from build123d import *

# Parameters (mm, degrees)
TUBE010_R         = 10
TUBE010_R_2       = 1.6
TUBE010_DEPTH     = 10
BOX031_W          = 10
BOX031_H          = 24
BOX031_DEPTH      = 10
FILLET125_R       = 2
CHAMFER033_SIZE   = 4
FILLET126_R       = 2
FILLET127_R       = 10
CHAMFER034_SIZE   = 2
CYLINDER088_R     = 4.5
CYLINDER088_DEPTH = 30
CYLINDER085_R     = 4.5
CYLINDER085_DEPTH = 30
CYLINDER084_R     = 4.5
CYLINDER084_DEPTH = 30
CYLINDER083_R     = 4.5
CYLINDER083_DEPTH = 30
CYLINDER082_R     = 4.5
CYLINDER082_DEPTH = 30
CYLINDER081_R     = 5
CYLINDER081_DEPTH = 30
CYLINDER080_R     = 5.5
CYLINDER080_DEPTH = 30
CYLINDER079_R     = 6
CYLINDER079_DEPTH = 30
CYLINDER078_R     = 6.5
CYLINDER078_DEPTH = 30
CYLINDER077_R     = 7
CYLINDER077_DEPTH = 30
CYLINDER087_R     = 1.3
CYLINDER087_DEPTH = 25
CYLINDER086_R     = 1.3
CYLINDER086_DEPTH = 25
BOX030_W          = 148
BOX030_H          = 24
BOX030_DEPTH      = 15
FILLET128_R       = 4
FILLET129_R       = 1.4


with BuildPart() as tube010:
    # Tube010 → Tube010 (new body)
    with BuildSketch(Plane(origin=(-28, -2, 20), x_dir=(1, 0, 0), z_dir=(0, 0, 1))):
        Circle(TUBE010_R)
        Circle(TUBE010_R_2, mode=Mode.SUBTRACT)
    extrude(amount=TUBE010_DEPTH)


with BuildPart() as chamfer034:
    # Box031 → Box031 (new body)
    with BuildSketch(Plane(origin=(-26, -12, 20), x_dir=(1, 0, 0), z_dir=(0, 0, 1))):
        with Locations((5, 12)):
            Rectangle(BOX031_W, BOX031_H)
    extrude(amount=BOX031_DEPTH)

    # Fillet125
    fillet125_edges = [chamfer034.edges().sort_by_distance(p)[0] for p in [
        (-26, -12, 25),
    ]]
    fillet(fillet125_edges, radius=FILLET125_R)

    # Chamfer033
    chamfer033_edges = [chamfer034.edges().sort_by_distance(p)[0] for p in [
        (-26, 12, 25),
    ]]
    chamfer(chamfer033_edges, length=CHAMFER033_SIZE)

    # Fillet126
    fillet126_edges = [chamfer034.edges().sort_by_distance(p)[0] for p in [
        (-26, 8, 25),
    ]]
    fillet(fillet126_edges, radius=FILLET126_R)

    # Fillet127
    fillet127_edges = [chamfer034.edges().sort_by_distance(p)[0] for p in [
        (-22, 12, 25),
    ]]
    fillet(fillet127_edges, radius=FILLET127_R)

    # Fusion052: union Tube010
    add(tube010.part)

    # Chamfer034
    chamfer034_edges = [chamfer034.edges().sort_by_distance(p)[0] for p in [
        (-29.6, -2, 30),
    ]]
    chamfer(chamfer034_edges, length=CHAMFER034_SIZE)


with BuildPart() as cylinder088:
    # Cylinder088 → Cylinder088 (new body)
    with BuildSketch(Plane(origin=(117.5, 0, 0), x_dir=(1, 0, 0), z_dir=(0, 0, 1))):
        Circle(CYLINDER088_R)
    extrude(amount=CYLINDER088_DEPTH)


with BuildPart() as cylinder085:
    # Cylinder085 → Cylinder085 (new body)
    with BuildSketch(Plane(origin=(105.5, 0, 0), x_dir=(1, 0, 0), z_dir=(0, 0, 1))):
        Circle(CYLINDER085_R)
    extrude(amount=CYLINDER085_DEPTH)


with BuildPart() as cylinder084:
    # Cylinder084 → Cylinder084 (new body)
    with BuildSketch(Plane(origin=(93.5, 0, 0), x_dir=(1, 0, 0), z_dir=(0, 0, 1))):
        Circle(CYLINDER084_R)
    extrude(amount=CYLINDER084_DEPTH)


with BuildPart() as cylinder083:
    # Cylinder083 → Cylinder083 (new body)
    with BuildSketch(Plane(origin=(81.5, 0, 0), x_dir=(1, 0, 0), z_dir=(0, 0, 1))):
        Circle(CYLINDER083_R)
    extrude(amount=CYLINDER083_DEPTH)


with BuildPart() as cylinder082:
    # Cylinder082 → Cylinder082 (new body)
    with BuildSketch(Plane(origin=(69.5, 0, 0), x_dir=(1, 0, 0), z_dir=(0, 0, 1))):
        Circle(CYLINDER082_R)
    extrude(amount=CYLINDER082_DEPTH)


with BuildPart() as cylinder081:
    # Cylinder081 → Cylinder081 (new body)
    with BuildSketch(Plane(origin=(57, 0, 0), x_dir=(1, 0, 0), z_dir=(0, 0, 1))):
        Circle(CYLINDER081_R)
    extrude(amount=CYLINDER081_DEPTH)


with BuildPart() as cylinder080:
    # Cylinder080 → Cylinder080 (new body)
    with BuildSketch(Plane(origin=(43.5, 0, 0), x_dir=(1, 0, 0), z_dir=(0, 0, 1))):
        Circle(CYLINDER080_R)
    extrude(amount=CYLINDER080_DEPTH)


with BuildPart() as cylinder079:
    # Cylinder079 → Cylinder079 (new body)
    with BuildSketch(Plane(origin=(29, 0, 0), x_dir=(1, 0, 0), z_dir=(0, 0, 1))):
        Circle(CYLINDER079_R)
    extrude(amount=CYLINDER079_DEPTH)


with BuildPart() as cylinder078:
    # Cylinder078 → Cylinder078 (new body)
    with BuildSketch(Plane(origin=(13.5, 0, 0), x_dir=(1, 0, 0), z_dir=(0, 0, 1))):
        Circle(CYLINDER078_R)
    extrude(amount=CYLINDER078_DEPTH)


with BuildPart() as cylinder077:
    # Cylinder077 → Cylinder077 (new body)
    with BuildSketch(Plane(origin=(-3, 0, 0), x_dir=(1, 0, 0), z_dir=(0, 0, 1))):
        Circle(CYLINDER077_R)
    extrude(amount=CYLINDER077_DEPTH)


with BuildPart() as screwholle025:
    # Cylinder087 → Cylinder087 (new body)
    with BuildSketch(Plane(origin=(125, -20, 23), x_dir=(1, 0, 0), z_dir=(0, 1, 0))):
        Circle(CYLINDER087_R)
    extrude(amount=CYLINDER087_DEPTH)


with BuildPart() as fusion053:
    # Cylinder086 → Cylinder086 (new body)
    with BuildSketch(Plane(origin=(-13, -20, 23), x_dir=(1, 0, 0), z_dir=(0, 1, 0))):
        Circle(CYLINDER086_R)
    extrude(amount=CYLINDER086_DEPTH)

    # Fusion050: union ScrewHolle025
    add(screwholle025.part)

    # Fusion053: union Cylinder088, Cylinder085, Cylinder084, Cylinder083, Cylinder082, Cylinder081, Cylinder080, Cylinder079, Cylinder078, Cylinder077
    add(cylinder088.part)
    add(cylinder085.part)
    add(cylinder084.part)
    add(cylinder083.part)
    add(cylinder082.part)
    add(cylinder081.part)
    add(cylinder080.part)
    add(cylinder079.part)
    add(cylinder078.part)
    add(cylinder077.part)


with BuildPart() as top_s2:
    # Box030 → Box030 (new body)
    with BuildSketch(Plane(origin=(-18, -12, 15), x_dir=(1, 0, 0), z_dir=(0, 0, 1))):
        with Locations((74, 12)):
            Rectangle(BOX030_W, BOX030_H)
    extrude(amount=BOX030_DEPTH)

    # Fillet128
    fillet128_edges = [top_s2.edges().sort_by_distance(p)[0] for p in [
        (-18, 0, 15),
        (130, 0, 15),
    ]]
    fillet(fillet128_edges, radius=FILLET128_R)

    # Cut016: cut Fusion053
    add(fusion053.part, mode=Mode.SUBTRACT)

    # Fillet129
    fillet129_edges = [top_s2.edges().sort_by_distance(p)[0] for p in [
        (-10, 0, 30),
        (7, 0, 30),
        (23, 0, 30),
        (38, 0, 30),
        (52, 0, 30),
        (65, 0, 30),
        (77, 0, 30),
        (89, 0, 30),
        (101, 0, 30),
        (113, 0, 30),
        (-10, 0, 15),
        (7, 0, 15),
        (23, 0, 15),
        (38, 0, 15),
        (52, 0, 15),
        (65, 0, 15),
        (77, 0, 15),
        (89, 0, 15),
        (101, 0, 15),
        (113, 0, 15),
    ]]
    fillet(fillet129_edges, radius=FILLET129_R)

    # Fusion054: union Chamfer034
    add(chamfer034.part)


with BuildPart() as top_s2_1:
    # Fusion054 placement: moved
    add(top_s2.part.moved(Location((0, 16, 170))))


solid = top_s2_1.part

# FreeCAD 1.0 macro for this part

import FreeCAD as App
import Part
import Sketcher

V = App.Vector


def edges_at(feature, points):
    """Names of the edges that pass closest to the given points."""
    edges = feature.Shape.Edges
    near = lambda p: min(range(len(edges)), key=lambda i: edges[i].distToShape(Part.Vertex(*p))[0])
    return sorted({f"Edge{near(p) + 1}" for p in points})

doc = App.newDocument("Part")
body = doc.addObject("PartDesign::Body", "Body")

# Sketch on XY plane
sketch1 = doc.addObject("Sketcher::SketchObject", "Sketch")
body.addObject(sketch1)
sketch1.AttachmentSupport = (doc.XY_Plane, [""])
sketch1.MapMode = "FlatFace"
sketch1.AttachmentOffset = App.Placement(V(0, 0, 20), App.Rotation())
sketch1.addGeometry(Part.Circle(V(-28, -2, 0), V(0, 0, 1), 10), False)
sketch1.addGeometry(Part.Circle(V(-28, -2, 0), V(0, 0, 1), 1.6), False)
sketch1.addConstraint(Sketcher.Constraint("Coincident", 1, 3, 0, 3))
sketch1.addConstraint(Sketcher.Constraint("Diameter", 0, 20.0))
sketch1.addConstraint(Sketcher.Constraint("Diameter", 1, 3.2))
sketch1.addConstraint(Sketcher.Constraint("DistanceX", 0, 3, -1, 1, 28.0))
sketch1.addConstraint(Sketcher.Constraint("DistanceY", 0, 3, -1, 1, 2.0))
pad1 = doc.addObject("PartDesign::Pad", "Pad")
body.addObject(pad1)
pad1.Profile = sketch1
pad1.Length = 10
body2 = doc.addObject("PartDesign::Body", "Body001")

# Sketch on XY plane
sketch2 = doc.addObject("Sketcher::SketchObject", "Sketch001")
body2.addObject(sketch2)
sketch2.AttachmentSupport = (doc.getObject("XY_Plane001"), [""])
sketch2.MapMode = "FlatFace"
sketch2.AttachmentOffset = App.Placement(V(0, 0, 20), App.Rotation())
sketch2.addGeometry(Part.LineSegment(V(-26, 12, 0), V(-26, -12, 0)), False)
sketch2.addGeometry(Part.LineSegment(V(-26, -12, 0), V(-16, -12, 0)), False)
sketch2.addGeometry(Part.LineSegment(V(-16, -12, 0), V(-16, 12, 0)), False)
sketch2.addGeometry(Part.LineSegment(V(-16, 12, 0), V(-26, 12, 0)), False)
sketch2.addConstraint(Sketcher.Constraint("Coincident", 0, 2, 1, 1))
sketch2.addConstraint(Sketcher.Constraint("Coincident", 1, 2, 2, 1))
sketch2.addConstraint(Sketcher.Constraint("Coincident", 2, 2, 3, 1))
sketch2.addConstraint(Sketcher.Constraint("Coincident", 3, 2, 0, 1))
sketch2.addConstraint(Sketcher.Constraint("Vertical", 0))
sketch2.addConstraint(Sketcher.Constraint("Horizontal", 1))
sketch2.addConstraint(Sketcher.Constraint("Vertical", 2))
sketch2.addConstraint(Sketcher.Constraint("Horizontal", 3))
sketch2.addConstraint(Sketcher.Constraint("DistanceX", 1, 1, 1, 2, 10.0))
sketch2.addConstraint(Sketcher.Constraint("DistanceY", 0, 2, 0, 1, 24.0))
sketch2.addConstraint(Sketcher.Constraint("DistanceX", 0, 2, -1, 1, 26.0))
sketch2.addConstraint(Sketcher.Constraint("DistanceY", 0, 2, -1, 1, 12.0))
pad2 = doc.addObject("PartDesign::Pad", "Pad001")
body2.addObject(pad2)
pad2.Profile = sketch2
pad2.Length = 10
doc.recompute()

fillet = doc.addObject("PartDesign::Fillet", "Fillet")
body2.addObject(fillet)
fillet.Base = (pad2, edges_at(pad2, [(-26, -12, 25)]))
fillet.Radius = 2
doc.recompute()

chamfer = doc.addObject("PartDesign::Chamfer", "Chamfer")
body2.addObject(chamfer)
chamfer.Base = (fillet, edges_at(fillet, [(-26, 12, 25)]))
chamfer.Size = 4
doc.recompute()

fillet2 = doc.addObject("PartDesign::Fillet", "Fillet001")
body2.addObject(fillet2)
fillet2.Base = (chamfer, edges_at(chamfer, [(-26, 8, 25)]))
fillet2.Radius = 2
doc.recompute()

fillet3 = doc.addObject("PartDesign::Fillet", "Fillet002")
body2.addObject(fillet3)
fillet3.Base = (fillet2, edges_at(fillet2, [(-22, 12, 25)]))
fillet3.Radius = 10
doc.recompute()

boolean = doc.addObject("PartDesign::Boolean", "Boolean")
body2.addObject(boolean)
boolean.Type = "Fuse"
boolean.addObjects([body])
doc.recompute()

chamfer2 = doc.addObject("PartDesign::Chamfer", "Chamfer001")
body2.addObject(chamfer2)
chamfer2.Base = (boolean, edges_at(boolean, [(-29.6, -2, 30)]))
chamfer2.Size = 2
body3 = doc.addObject("PartDesign::Body", "Body002")

# Sketch on XY plane
sketch3 = doc.addObject("Sketcher::SketchObject", "Sketch002")
body3.addObject(sketch3)
sketch3.AttachmentSupport = (doc.getObject("XY_Plane002"), [""])
sketch3.MapMode = "FlatFace"
sketch3.addGeometry(Part.Circle(V(117.5, 0, 0), V(0, 0, 1), 4.5), False)
sketch3.addConstraint(Sketcher.Constraint("PointOnObject", 0, 3, -1))
sketch3.addConstraint(Sketcher.Constraint("Diameter", 0, 9.0))
sketch3.addConstraint(Sketcher.Constraint("DistanceX", -1, 1, 0, 3, 117.5))
pad3 = doc.addObject("PartDesign::Pad", "Pad002")
body3.addObject(pad3)
pad3.Profile = sketch3
pad3.Length = 30
body4 = doc.addObject("PartDesign::Body", "Body003")

# Sketch on XY plane
sketch4 = doc.addObject("Sketcher::SketchObject", "Sketch003")
body4.addObject(sketch4)
sketch4.AttachmentSupport = (doc.getObject("XY_Plane003"), [""])
sketch4.MapMode = "FlatFace"
sketch4.addGeometry(Part.Circle(V(105.5, 0, 0), V(0, 0, 1), 4.5), False)
sketch4.addConstraint(Sketcher.Constraint("PointOnObject", 0, 3, -1))
sketch4.addConstraint(Sketcher.Constraint("Diameter", 0, 9.0))
sketch4.addConstraint(Sketcher.Constraint("DistanceX", -1, 1, 0, 3, 105.5))
pad4 = doc.addObject("PartDesign::Pad", "Pad003")
body4.addObject(pad4)
pad4.Profile = sketch4
pad4.Length = 30
body5 = doc.addObject("PartDesign::Body", "Body004")

# Sketch on XY plane
sketch5 = doc.addObject("Sketcher::SketchObject", "Sketch004")
body5.addObject(sketch5)
sketch5.AttachmentSupport = (doc.getObject("XY_Plane004"), [""])
sketch5.MapMode = "FlatFace"
sketch5.addGeometry(Part.Circle(V(93.5, 0, 0), V(0, 0, 1), 4.5), False)
sketch5.addConstraint(Sketcher.Constraint("PointOnObject", 0, 3, -1))
sketch5.addConstraint(Sketcher.Constraint("Diameter", 0, 9.0))
sketch5.addConstraint(Sketcher.Constraint("DistanceX", -1, 1, 0, 3, 93.5))
pad5 = doc.addObject("PartDesign::Pad", "Pad004")
body5.addObject(pad5)
pad5.Profile = sketch5
pad5.Length = 30
body6 = doc.addObject("PartDesign::Body", "Body005")

# Sketch on XY plane
sketch6 = doc.addObject("Sketcher::SketchObject", "Sketch005")
body6.addObject(sketch6)
sketch6.AttachmentSupport = (doc.getObject("XY_Plane005"), [""])
sketch6.MapMode = "FlatFace"
sketch6.addGeometry(Part.Circle(V(81.5, 0, 0), V(0, 0, 1), 4.5), False)
sketch6.addConstraint(Sketcher.Constraint("PointOnObject", 0, 3, -1))
sketch6.addConstraint(Sketcher.Constraint("Diameter", 0, 9.0))
sketch6.addConstraint(Sketcher.Constraint("DistanceX", -1, 1, 0, 3, 81.5))
pad6 = doc.addObject("PartDesign::Pad", "Pad005")
body6.addObject(pad6)
pad6.Profile = sketch6
pad6.Length = 30
body7 = doc.addObject("PartDesign::Body", "Body006")

# Sketch on XY plane
sketch7 = doc.addObject("Sketcher::SketchObject", "Sketch006")
body7.addObject(sketch7)
sketch7.AttachmentSupport = (doc.getObject("XY_Plane006"), [""])
sketch7.MapMode = "FlatFace"
sketch7.addGeometry(Part.Circle(V(69.5, 0, 0), V(0, 0, 1), 4.5), False)
sketch7.addConstraint(Sketcher.Constraint("PointOnObject", 0, 3, -1))
sketch7.addConstraint(Sketcher.Constraint("Diameter", 0, 9.0))
sketch7.addConstraint(Sketcher.Constraint("DistanceX", -1, 1, 0, 3, 69.5))
pad7 = doc.addObject("PartDesign::Pad", "Pad006")
body7.addObject(pad7)
pad7.Profile = sketch7
pad7.Length = 30
body8 = doc.addObject("PartDesign::Body", "Body007")

# Sketch on XY plane
sketch8 = doc.addObject("Sketcher::SketchObject", "Sketch007")
body8.addObject(sketch8)
sketch8.AttachmentSupport = (doc.getObject("XY_Plane007"), [""])
sketch8.MapMode = "FlatFace"
sketch8.addGeometry(Part.Circle(V(57, 0, 0), V(0, 0, 1), 5), False)
sketch8.addConstraint(Sketcher.Constraint("PointOnObject", 0, 3, -1))
sketch8.addConstraint(Sketcher.Constraint("Diameter", 0, 10.0))
sketch8.addConstraint(Sketcher.Constraint("DistanceX", -1, 1, 0, 3, 57.0))
pad8 = doc.addObject("PartDesign::Pad", "Pad007")
body8.addObject(pad8)
pad8.Profile = sketch8
pad8.Length = 30
body9 = doc.addObject("PartDesign::Body", "Body008")

# Sketch on XY plane
sketch9 = doc.addObject("Sketcher::SketchObject", "Sketch008")
body9.addObject(sketch9)
sketch9.AttachmentSupport = (doc.getObject("XY_Plane008"), [""])
sketch9.MapMode = "FlatFace"
sketch9.addGeometry(Part.Circle(V(44, 0, 0), V(0, 0, 1), 6), False)
sketch9.addConstraint(Sketcher.Constraint("PointOnObject", 0, 3, -1))
sketch9.addConstraint(Sketcher.Constraint("Diameter", 0, 11.0))
sketch9.addConstraint(Sketcher.Constraint("DistanceX", -1, 1, 0, 3, 43.5))
pad9 = doc.addObject("PartDesign::Pad", "Pad008")
body9.addObject(pad9)
pad9.Profile = sketch9
pad9.Length = 30
body10 = doc.addObject("PartDesign::Body", "Body009")

# Sketch on XY plane
sketch10 = doc.addObject("Sketcher::SketchObject", "Sketch009")
body10.addObject(sketch10)
sketch10.AttachmentSupport = (doc.getObject("XY_Plane009"), [""])
sketch10.MapMode = "FlatFace"
sketch10.addGeometry(Part.Circle(V(29, 0, 0), V(0, 0, 1), 6), False)
sketch10.addConstraint(Sketcher.Constraint("PointOnObject", 0, 3, -1))
sketch10.addConstraint(Sketcher.Constraint("Diameter", 0, 12.0))
sketch10.addConstraint(Sketcher.Constraint("DistanceX", -1, 1, 0, 3, 29.0))
pad10 = doc.addObject("PartDesign::Pad", "Pad009")
body10.addObject(pad10)
pad10.Profile = sketch10
pad10.Length = 30
body11 = doc.addObject("PartDesign::Body", "Body010")

# Sketch on XY plane
sketch11 = doc.addObject("Sketcher::SketchObject", "Sketch010")
body11.addObject(sketch11)
sketch11.AttachmentSupport = (doc.getObject("XY_Plane010"), [""])
sketch11.MapMode = "FlatFace"
sketch11.addGeometry(Part.Circle(V(14, 0, 0), V(0, 0, 1), 6), False)
sketch11.addConstraint(Sketcher.Constraint("PointOnObject", 0, 3, -1))
sketch11.addConstraint(Sketcher.Constraint("Diameter", 0, 13.0))
sketch11.addConstraint(Sketcher.Constraint("DistanceX", -1, 1, 0, 3, 13.5))
pad11 = doc.addObject("PartDesign::Pad", "Pad010")
body11.addObject(pad11)
pad11.Profile = sketch11
pad11.Length = 30
body12 = doc.addObject("PartDesign::Body", "Body011")

# Sketch on XY plane
sketch12 = doc.addObject("Sketcher::SketchObject", "Sketch011")
body12.addObject(sketch12)
sketch12.AttachmentSupport = (doc.getObject("XY_Plane011"), [""])
sketch12.MapMode = "FlatFace"
sketch12.addGeometry(Part.Circle(V(-3, 0, 0), V(0, 0, 1), 7), False)
sketch12.addConstraint(Sketcher.Constraint("PointOnObject", 0, 3, -1))
sketch12.addConstraint(Sketcher.Constraint("Diameter", 0, 14.0))
sketch12.addConstraint(Sketcher.Constraint("DistanceX", 0, 3, -1, 1, 3.0))
pad12 = doc.addObject("PartDesign::Pad", "Pad011")
body12.addObject(pad12)
pad12.Profile = sketch12
pad12.Length = 30
body13 = doc.addObject("PartDesign::Body", "Body012")

# Sketch on XZ plane
sketch13 = doc.addObject("Sketcher::SketchObject", "Sketch012")
body13.addObject(sketch13)
sketch13.AttachmentSupport = (doc.getObject("XZ_Plane012"), [""])
sketch13.MapMode = "FlatFace"
sketch13.AttachmentOffset = App.Placement(V(0, 0, 20), App.Rotation())
sketch13.addGeometry(Part.Circle(V(125, 23, 0), V(0, 0, 1), 1.3), False)
sketch13.addConstraint(Sketcher.Constraint("Diameter", 0, 2.6))
sketch13.addConstraint(Sketcher.Constraint("DistanceX", -1, 1, 0, 3, 125.0))
sketch13.addConstraint(Sketcher.Constraint("DistanceY", -1, 1, 0, 3, 23.0))
pad13 = doc.addObject("PartDesign::Pad", "Pad012")
body13.addObject(pad13)
pad13.Profile = sketch13
pad13.Length = 25
pad13.Reversed = True
body14 = doc.addObject("PartDesign::Body", "Body013")
body14.AllowCompound = True

# Sketch on XZ plane
sketch14 = doc.addObject("Sketcher::SketchObject", "Sketch013")
body14.addObject(sketch14)
sketch14.AttachmentSupport = (doc.getObject("XZ_Plane013"), [""])
sketch14.MapMode = "FlatFace"
sketch14.AttachmentOffset = App.Placement(V(0, 0, 20), App.Rotation())
sketch14.addGeometry(Part.Circle(V(-13, 23, 0), V(0, 0, 1), 1.3), False)
sketch14.addConstraint(Sketcher.Constraint("Diameter", 0, 2.6))
sketch14.addConstraint(Sketcher.Constraint("DistanceX", 0, 3, -1, 1, 13.0))
sketch14.addConstraint(Sketcher.Constraint("DistanceY", -1, 1, 0, 3, 23.0))
pad14 = doc.addObject("PartDesign::Pad", "Pad013")
body14.addObject(pad14)
pad14.Profile = sketch14
pad14.Length = 25
pad14.Reversed = True
doc.recompute()

boolean2 = doc.addObject("PartDesign::Boolean", "Boolean001")
body14.addObject(boolean2)
boolean2.Type = "Fuse"
boolean2.addObjects([body13])
doc.recompute()

boolean3 = doc.addObject("PartDesign::Boolean", "Boolean002")
body14.addObject(boolean3)
boolean3.Type = "Fuse"
boolean3.addObjects([body3])
doc.recompute()

boolean4 = doc.addObject("PartDesign::Boolean", "Boolean003")
body14.addObject(boolean4)
boolean4.Type = "Fuse"
boolean4.addObjects([body4])
doc.recompute()

boolean5 = doc.addObject("PartDesign::Boolean", "Boolean004")
body14.addObject(boolean5)
boolean5.Type = "Fuse"
boolean5.addObjects([body5])
doc.recompute()

boolean6 = doc.addObject("PartDesign::Boolean", "Boolean005")
body14.addObject(boolean6)
boolean6.Type = "Fuse"
boolean6.addObjects([body6])
doc.recompute()

boolean7 = doc.addObject("PartDesign::Boolean", "Boolean006")
body14.addObject(boolean7)
boolean7.Type = "Fuse"
boolean7.addObjects([body7])
doc.recompute()

boolean8 = doc.addObject("PartDesign::Boolean", "Boolean007")
body14.addObject(boolean8)
boolean8.Type = "Fuse"
boolean8.addObjects([body8])
doc.recompute()

boolean9 = doc.addObject("PartDesign::Boolean", "Boolean008")
body14.addObject(boolean9)
boolean9.Type = "Fuse"
boolean9.addObjects([body9])
doc.recompute()

boolean10 = doc.addObject("PartDesign::Boolean", "Boolean009")
body14.addObject(boolean10)
boolean10.Type = "Fuse"
boolean10.addObjects([body10])
doc.recompute()

boolean11 = doc.addObject("PartDesign::Boolean", "Boolean010")
body14.addObject(boolean11)
boolean11.Type = "Fuse"
boolean11.addObjects([body11])
doc.recompute()

boolean12 = doc.addObject("PartDesign::Boolean", "Boolean011")
body14.addObject(boolean12)
boolean12.Type = "Fuse"
boolean12.addObjects([body12])
body15 = doc.addObject("PartDesign::Body", "Body014")

# Sketch on XY plane
sketch15 = doc.addObject("Sketcher::SketchObject", "Sketch014")
body15.addObject(sketch15)
sketch15.AttachmentSupport = (doc.getObject("XY_Plane014"), [""])
sketch15.MapMode = "FlatFace"
sketch15.AttachmentOffset = App.Placement(V(0, 0, 15), App.Rotation())
sketch15.addGeometry(Part.LineSegment(V(-18, 12, 0), V(-18, -12, 0)), False)
sketch15.addGeometry(Part.LineSegment(V(-18, -12, 0), V(130, -12, 0)), False)
sketch15.addGeometry(Part.LineSegment(V(130, -12, 0), V(130, 12, 0)), False)
sketch15.addGeometry(Part.LineSegment(V(130, 12, 0), V(-18, 12, 0)), False)
sketch15.addConstraint(Sketcher.Constraint("Coincident", 0, 2, 1, 1))
sketch15.addConstraint(Sketcher.Constraint("Coincident", 1, 2, 2, 1))
sketch15.addConstraint(Sketcher.Constraint("Coincident", 2, 2, 3, 1))
sketch15.addConstraint(Sketcher.Constraint("Coincident", 3, 2, 0, 1))
sketch15.addConstraint(Sketcher.Constraint("Vertical", 0))
sketch15.addConstraint(Sketcher.Constraint("Horizontal", 1))
sketch15.addConstraint(Sketcher.Constraint("Vertical", 2))
sketch15.addConstraint(Sketcher.Constraint("Horizontal", 3))
sketch15.addConstraint(Sketcher.Constraint("DistanceX", 1, 1, 1, 2, 148.0))
sketch15.addConstraint(Sketcher.Constraint("DistanceY", 0, 2, 0, 1, 24.0))
sketch15.addConstraint(Sketcher.Constraint("DistanceX", 0, 2, -1, 1, 18.0))
sketch15.addConstraint(Sketcher.Constraint("DistanceY", 0, 2, -1, 1, 12.0))
pad15 = doc.addObject("PartDesign::Pad", "Pad014")
body15.addObject(pad15)
pad15.Profile = sketch15
pad15.Length = 15
doc.recompute()

fillet4 = doc.addObject("PartDesign::Fillet", "Fillet003")
body15.addObject(fillet4)
fillet4.Base = (pad15, edges_at(pad15, [(-18, 0, 15), (130, 0, 15)]))
fillet4.Radius = 4
doc.recompute()

boolean13 = doc.addObject("PartDesign::Boolean", "Boolean012")
body15.addObject(boolean13)
boolean13.Type = "Cut"
boolean13.addObjects([body14])
doc.recompute()

fillet5 = doc.addObject("PartDesign::Fillet", "Fillet004")
body15.addObject(fillet5)
fillet5.Base = (boolean13, edges_at(boolean13, [
    (-10, 0, 30),
    (7, 0, 30),
    (23, 0, 30),
    (38, 0, 30),
    (52, 0, 30),
    (65, 0, 30),
    (77, 0, 30),
    (89, 0, 30),
    (101, 0, 30),
    (113, 0, 30),
    (-10, 0, 15),
    (7, 0, 15),
    (23, 0, 15),
    (38, 0, 15),
    (52, 0, 15),
    (65, 0, 15),
    (77, 0, 15),
    (89, 0, 15),
    (101, 0, 15),
    (113, 0, 15),
]))
fillet5.Radius = 1.4
doc.recompute()

boolean14 = doc.addObject("PartDesign::Boolean", "Boolean013")
body15.addObject(boolean14)
boolean14.Type = "Fuse"
boolean14.addObjects([body2])
body16 = doc.addObject("PartDesign::Body", "Body015")
doc.recompute()

body15.Placement = App.Placement(V(0, 16, 170), App.Rotation(V(0, 0, 1), 0))
boolean15 = doc.addObject("PartDesign::Boolean", "Boolean014")
body16.addObject(boolean15)
boolean15.Type = "Fuse"
boolean15.addObjects([body15])

doc.recompute()
